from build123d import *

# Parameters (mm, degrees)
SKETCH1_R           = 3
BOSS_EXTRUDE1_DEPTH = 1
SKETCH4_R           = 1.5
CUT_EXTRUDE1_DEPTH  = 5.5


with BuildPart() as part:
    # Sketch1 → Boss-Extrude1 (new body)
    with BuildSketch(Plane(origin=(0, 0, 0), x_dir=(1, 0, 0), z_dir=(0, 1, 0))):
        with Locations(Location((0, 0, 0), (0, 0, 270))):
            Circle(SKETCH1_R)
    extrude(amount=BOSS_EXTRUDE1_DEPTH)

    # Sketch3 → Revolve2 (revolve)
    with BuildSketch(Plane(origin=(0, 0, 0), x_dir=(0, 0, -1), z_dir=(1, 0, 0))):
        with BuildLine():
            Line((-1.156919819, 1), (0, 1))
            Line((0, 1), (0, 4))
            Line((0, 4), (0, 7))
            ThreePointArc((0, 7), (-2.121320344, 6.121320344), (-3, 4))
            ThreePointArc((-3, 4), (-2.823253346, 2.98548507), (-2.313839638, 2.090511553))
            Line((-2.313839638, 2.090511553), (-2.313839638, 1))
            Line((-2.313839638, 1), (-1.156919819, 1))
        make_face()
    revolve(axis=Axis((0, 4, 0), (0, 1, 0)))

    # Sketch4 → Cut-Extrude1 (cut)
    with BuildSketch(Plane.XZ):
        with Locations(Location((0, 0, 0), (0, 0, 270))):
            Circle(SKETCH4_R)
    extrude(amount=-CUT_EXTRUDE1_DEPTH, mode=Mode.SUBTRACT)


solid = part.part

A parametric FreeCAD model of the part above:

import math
import FreeCAD as App
import Part
import Sketcher

V = App.Vector

doc = App.newDocument("Part")
params = doc.addObject("Spreadsheet::Sheet", "Params")
for row, (alias, value) in enumerate([
    ("sketch1_diameter", "6 mm"),
    ("pad1_length", "1 mm"),
    ("sketch2_radius", "3 mm"),
    ("sketch2_width", "6 mm"),
    ("revolution_angle", "360 deg"),
    ("sketch3_diameter", "3 mm"),
    ("pocket1_length", "5.5 mm"),
], start=1):
    params.set(f"A{row}", alias)
    params.set(f"B{row}", "=" + value)
    params.setAlias(f"B{row}", alias)

body = doc.addObject("PartDesign::Body", "Body")

# Sketch on XZ plane
sketch1 = body.newObject("Sketcher::SketchObject", "Sketch")
sketch1.AttachmentSupport = (doc.getObject("XZ_Plane"), [""])
sketch1.MapMode = "FlatFace"
sketch1.addGeometry(Part.Circle(V(0, 0, 0), V(0, 0, 1), 3), False)
sketch1.addConstraint([
    Sketcher.Constraint("Coincident", 0, 3, -1, 1),
    Sketcher.Constraint("Diameter", 0, 6.0),
])
sketch1.setExpression("Constraints[1]", "Params.sketch1_diameter")
pad1 = body.newObject("PartDesign::Pad", "Pad")
pad1.Profile = sketch1
pad1.setExpression("Length", "Params.pad1_length")
pad1.Reversed = True

# Sketch on YZ plane
sketch2 = body.newObject("Sketcher::SketchObject", "Sketch001")
sketch2.AttachmentSupport = (doc.getObject("YZ_Plane"), [""])
sketch2.MapMode = "FlatFace"
sketch2.addGeometry([
    Part.LineSegment(V(1, 0, 0), V(7, 0, 0)),  # 0
    Part.ArcOfCircle(Part.Circle(V(4, 0, 0), V(0, 0, 1), 3), math.radians(0), math.radians(90)),  # 1
    Part.ArcOfCircle(Part.Circle(V(4, 0, 0), V(0, 0, 1), 3), math.radians(90), math.radians(130)),  # 2
    Part.LineSegment(V(2.1, 2.3, 0), V(1, 2.3, 0)),  # 3
    Part.LineSegment(V(1, 2.3, 0), V(1, 0, 0)),  # 4
], False)
sketch2.addConstraint([
    Sketcher.Constraint("Coincident", 0, 2, 1, 1),
    Sketcher.Constraint("Tangent", 1, 2, 2, 1),
    Sketcher.Constraint("Coincident", 2, 2, 3, 1),
    Sketcher.Constraint("Coincident", 3, 2, 4, 1),
    Sketcher.Constraint("Coincident", 4, 2, 0, 1),
    Sketcher.Constraint("Horizontal", 0),
    Sketcher.Constraint("Horizontal", 3),
    Sketcher.Constraint("Vertical", 4),
    Sketcher.Constraint("Equal", 1, 2),
    Sketcher.Constraint("PointOnObject", 1, 3, -1),
    Sketcher.Constraint("PointOnObject", 0, 2, -1),
    Sketcher.Constraint("Vertical", 2, 3, 1, 2),
    Sketcher.Constraint("Radius", 1, 3.0),
    Sketcher.Constraint("DistanceX", 0, 1, 0, 2, 6.0),
    Sketcher.Constraint("DistanceX", -1, 1, 1, 3, 4.0),
    Sketcher.Constraint("DistanceX", 3, 2, 3, 1, 1.090512),
])
sketch2.setExpression("Constraints[12]", "Params.sketch2_radius")
sketch2.setExpression("Constraints[13]", "Params.sketch2_width")
revolution = body.newObject("PartDesign::Revolution", "Revolution")
revolution.Profile = sketch2
revolution.ReferenceAxis = (sketch2, ["H_Axis"])
revolution.setExpression("Angle", "Params.revolution_angle")

# Sketch on XZ plane
sketch3 = body.newObject("Sketcher::SketchObject", "Sketch002")
sketch3.AttachmentSupport = (doc.getObject("XZ_Plane"), [""])
sketch3.MapMode = "FlatFace"
sketch3.addGeometry(Part.Circle(V(0, 0, 0), V(0, 0, 1), 1.5), False)
sketch3.addConstraint([
    Sketcher.Constraint("Coincident", 0, 3, -1, 1),
    Sketcher.Constraint("Diameter", 0, 3.0),
])
sketch3.setExpression("Constraints[1]", "Params.sketch3_diameter")
pocket1 = body.newObject("PartDesign::Pocket", "Pocket")
pocket1.Profile = sketch3
pocket1.setExpression("Length", "Params.pocket1_length")

doc.recompute()
